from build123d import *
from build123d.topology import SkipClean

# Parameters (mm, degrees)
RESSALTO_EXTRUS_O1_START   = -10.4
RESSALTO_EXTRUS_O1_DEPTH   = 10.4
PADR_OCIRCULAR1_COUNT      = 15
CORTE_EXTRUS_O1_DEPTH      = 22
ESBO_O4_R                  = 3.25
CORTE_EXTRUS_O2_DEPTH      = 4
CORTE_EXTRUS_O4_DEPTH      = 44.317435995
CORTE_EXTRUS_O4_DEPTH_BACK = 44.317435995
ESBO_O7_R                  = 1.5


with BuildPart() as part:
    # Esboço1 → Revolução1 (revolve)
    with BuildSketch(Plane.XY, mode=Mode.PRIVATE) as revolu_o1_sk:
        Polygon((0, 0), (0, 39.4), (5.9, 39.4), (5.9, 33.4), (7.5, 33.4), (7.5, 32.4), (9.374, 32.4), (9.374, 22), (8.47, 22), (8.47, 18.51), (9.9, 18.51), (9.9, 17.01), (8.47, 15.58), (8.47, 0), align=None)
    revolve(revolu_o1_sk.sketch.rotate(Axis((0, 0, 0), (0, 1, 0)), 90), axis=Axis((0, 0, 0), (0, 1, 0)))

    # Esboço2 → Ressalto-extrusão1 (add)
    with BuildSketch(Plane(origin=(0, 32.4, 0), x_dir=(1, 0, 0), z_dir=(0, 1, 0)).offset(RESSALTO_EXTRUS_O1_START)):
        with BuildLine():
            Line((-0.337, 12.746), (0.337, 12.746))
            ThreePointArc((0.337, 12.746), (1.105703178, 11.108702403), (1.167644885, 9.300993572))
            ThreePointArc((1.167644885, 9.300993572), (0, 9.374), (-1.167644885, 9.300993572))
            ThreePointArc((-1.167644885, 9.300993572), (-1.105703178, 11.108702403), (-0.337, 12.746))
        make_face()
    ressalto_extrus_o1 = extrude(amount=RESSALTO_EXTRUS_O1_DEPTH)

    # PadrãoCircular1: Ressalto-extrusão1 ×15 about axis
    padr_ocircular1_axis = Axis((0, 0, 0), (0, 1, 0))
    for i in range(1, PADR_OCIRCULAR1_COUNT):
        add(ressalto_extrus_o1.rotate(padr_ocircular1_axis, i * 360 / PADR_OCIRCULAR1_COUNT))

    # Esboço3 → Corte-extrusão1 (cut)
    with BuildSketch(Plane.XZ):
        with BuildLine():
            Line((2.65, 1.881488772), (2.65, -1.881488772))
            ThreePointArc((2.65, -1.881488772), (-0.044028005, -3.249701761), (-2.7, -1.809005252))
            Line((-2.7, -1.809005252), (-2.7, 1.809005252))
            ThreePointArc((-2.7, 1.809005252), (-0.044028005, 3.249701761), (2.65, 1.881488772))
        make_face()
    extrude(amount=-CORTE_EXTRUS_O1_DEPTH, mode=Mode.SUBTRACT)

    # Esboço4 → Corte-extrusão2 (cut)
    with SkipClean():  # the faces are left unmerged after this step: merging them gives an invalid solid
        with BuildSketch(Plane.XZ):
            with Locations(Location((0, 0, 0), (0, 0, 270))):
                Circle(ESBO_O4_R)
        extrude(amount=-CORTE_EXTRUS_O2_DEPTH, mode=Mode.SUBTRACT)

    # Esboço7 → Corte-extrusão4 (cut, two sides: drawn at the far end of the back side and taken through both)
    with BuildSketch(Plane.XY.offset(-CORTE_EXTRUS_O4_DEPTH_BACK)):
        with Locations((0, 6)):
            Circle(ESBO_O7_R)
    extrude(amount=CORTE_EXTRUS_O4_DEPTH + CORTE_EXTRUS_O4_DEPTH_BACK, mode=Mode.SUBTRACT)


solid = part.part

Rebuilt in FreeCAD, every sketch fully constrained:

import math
import FreeCAD as App
import Part
import Sketcher

V = App.Vector
Q = App.Units.Quantity

doc = App.newDocument("Part")
body = doc.addObject("PartDesign::Body", "Body")

sketch1 = body.newObject("Sketcher::SketchObject", "Sketch")
sketch1.AttachmentSupport = (doc.getObject("XY_Plane"), [""])
sketch1.MapMode = "FlatFace"
sketch1.addGeometry([
    Part.LineSegment(V(0, 39.4, 0), V(0, 0, 0)),
    Part.LineSegment(V(0, 0, 0), V(8.5, 0, 0)),
    Part.LineSegment(V(8.5, 0, 0), V(8.5, 15.6, 0)),
    Part.LineSegment(V(8.5, 15.6, 0), V(9.9, 17, 0)),
    Part.LineSegment(V(9.9, 17, 0), V(9.9, 18.5, 0)),
    Part.LineSegment(V(9.9, 18.5, 0), V(8.5, 18.5, 0)),
    Part.LineSegment(V(8.5, 18.5, 0), V(8.5, 22, 0)),
    Part.LineSegment(V(8.5, 22, 0), V(9.4, 22, 0)),
    Part.LineSegment(V(9.4, 22, 0), V(9.4, 32.4, 0)),
    Part.LineSegment(V(9.4, 32.4, 0), V(7.5, 32.4, 0)),
    Part.LineSegment(V(7.5, 32.4, 0), V(7.5, 33.4, 0)),
    Part.LineSegment(V(7.5, 33.4, 0), V(5.9, 33.4, 0)),
    Part.LineSegment(V(5.9, 33.4, 0), V(5.9, 39.4, 0)),
    Part.LineSegment(V(5.9, 39.4, 0), V(0, 39.4, 0)),
], False)
sketch1.addConstraint([
    Sketcher.Constraint("Coincident", 0, 2, 1, 1),
    Sketcher.Constraint("Coincident", 1, 2, 2, 1),
    Sketcher.Constraint("Coincident", 2, 2, 3, 1),
    Sketcher.Constraint("Coincident", 3, 2, 4, 1),
    Sketcher.Constraint("Coincident", 4, 2, 5, 1),
    Sketcher.Constraint("Coincident", 5, 2, 6, 1),
    Sketcher.Constraint("Coincident", 6, 2, 7, 1),
    Sketcher.Constraint("Coincident", 7, 2, 8, 1),
    Sketcher.Constraint("Coincident", 8, 2, 9, 1),
    Sketcher.Constraint("Coincident", 9, 2, 10, 1),
    Sketcher.Constraint("Coincident", 10, 2, 11, 1),
    Sketcher.Constraint("Coincident", 11, 2, 12, 1),
    Sketcher.Constraint("Coincident", 12, 2, 13, 1),
    Sketcher.Constraint("Coincident", 13, 2, 0, 1),
    Sketcher.Constraint("Vertical", 0),
    Sketcher.Constraint("Horizontal", 1),
    Sketcher.Constraint("Vertical", 2),
    Sketcher.Constraint("Vertical", 4),
    Sketcher.Constraint("Horizontal", 5),
    Sketcher.Constraint("Vertical", 6),
    Sketcher.Constraint("Horizontal", 7),
    Sketcher.Constraint("Vertical", 8),
    Sketcher.Constraint("Horizontal", 9),
    Sketcher.Constraint("Vertical", 10),
    Sketcher.Constraint("Horizontal", 11),
    Sketcher.Constraint("Vertical", 12),
    Sketcher.Constraint("Horizontal", 13),
    Sketcher.Constraint("Coincident", 0, 2, -1, 1),
    Sketcher.Constraint("Vertical", 2, 2, 5, 2),
    Sketcher.Constraint("DistanceY", 10, 1, 10, 2, 1.0),
    Sketcher.Constraint("DistanceY", 12, 1, 12, 2, 6.0),
    Sketcher.Constraint("Angle", 3, Q("45 deg")),
    Sketcher.Constraint("DistanceX", 11, 2, 11, 1, 1.6),
    Sketcher.Constraint("DistanceX", 13, 2, 13, 1, 5.9),
    Sketcher.Constraint("DistanceY", 0, 2, 0, 1, 39.4),
    Sketcher.Constraint("DistanceY", 4, 1, 4, 2, 1.5),
    Sketcher.Constraint("DistanceY", 8, 1, 8, 2, 10.4),
    Sketcher.Constraint("DistanceX", 1, 1, 1, 2, 8.47),
    Sketcher.Constraint("DistanceX", 5, 2, 5, 1, 1.43),
    Sketcher.Constraint("DistanceY", 2, 1, 2, 2, 15.58),
    Sketcher.Constraint("DistanceX", 7, 1, 7, 2, 0.904),
])
revolution = body.newObject("PartDesign::Revolution", "Revolution")
revolution.Profile = sketch1
revolution.ReferenceAxis = (sketch1, ["V_Axis"])
revolution.Angle = 360

sketch2 = body.newObject("Sketcher::SketchObject", "Sketch001")
sketch2.AttachmentSupport = (doc.getObject("XZ_Plane"), [""])
sketch2.MapMode = "FlatFace"
sketch2.AttachmentOffset = App.Placement(V(0, 0, -22), App.Rotation())
sketch2.addGeometry([
    Part.LineSegment(V(0.3, -12.7, 0), V(-0.3, -12.7, 0)),
    Part.ArcOfCircle(Part.Circle(V(3.3, -10.1, 0), V(0, 0, 1), 4.5), math.radians(170), math.radians(217)),
    Part.ArcOfCircle(Part.Circle(V(0, 0, 0), V(0, 0, 1), 9.4), math.radians(-97.16), math.radians(-82.84)),
    Part.ArcOfCircle(Part.Circle(V(-3.3, -10.1, 0), V(0, 0, 1), 4.5), math.radians(-37), math.radians(10)),
], False)
sketch2.addConstraint([
    Sketcher.Constraint("Coincident", 0, 2, 1, 2),
    Sketcher.Constraint("Coincident", 1, 1, 2, 1),
    Sketcher.Constraint("Coincident", 2, 2, 3, 2),
    Sketcher.Constraint("Coincident", 3, 1, 0, 1),
    Sketcher.Constraint("Horizontal", 0),
    Sketcher.Constraint("Coincident", 2, 3, -1, 1),
    Sketcher.Constraint("Equal", 1, 3),
    Sketcher.Constraint("Symmetric", 1, 3, 3, 3, -2),
    Sketcher.Constraint("Radius", 2, 9.374),
    Sketcher.Constraint("DistanceX", 0, 2, 0, 1, 0.674),
    Sketcher.Constraint("DistanceY", 0, 2, -1, 1, 12.746),
    Sketcher.Constraint("Radius", 1, 4.500107),
    Sketcher.Constraint("DistanceX", 3, 3, 1, 1, 2.101389),
])
pad1 = body.newObject("PartDesign::Pad", "Pad")
pad1.Profile = sketch2
pad1.Length = 10.4
pad1.Reversed = True
doc.recompute()

polarpattern = body.newObject("PartDesign::PolarPattern", "PolarPattern")
polarpattern.Originals = [pad1]
polarpattern.Axis = (doc.getObject("Y_Axis"), [""])
polarpattern.Angle = 360
polarpattern.Occurrences = 15
body.Tip = polarpattern

sketch3 = body.newObject("Sketcher::SketchObject", "Sketch002")
sketch3.AttachmentSupport = (doc.getObject("XZ_Plane"), [""])
sketch3.MapMode = "FlatFace"
sketch3.addGeometry([
    Part.LineSegment(V(2.6, -1.9, 0), V(2.6, 1.9, 0)),
    Part.ArcOfCircle(Part.Circle(V(0, 0, 0), V(0, 0, 1), 3.2), math.radians(35), math.radians(146)),
    Part.LineSegment(V(-2.7, 1.8, 0), V(-2.7, -1.8, 0)),
    Part.ArcOfCircle(Part.Circle(V(0, 0, 0), V(0, 0, 1), 3.2), math.radians(-146), math.radians(-35)),
], False)
sketch3.addConstraint([
    Sketcher.Constraint("Coincident", 0, 2, 1, 1),
    Sketcher.Constraint("Coincident", 1, 2, 2, 1),
    Sketcher.Constraint("Coincident", 2, 2, 3, 1),
    Sketcher.Constraint("Coincident", 3, 2, 0, 1),
    Sketcher.Constraint("Vertical", 0),
    Sketcher.Constraint("Vertical", 2),
    Sketcher.Constraint("Coincident", 1, 3, -1, 1),
    Sketcher.Constraint("Coincident", 3, 3, -1, 1),
    Sketcher.Constraint("Equal", 1, 3),
    Sketcher.Constraint("Radius", 1, 3.25),
    Sketcher.Constraint("DistanceX", 1, 2, -1, 1, 2.7),
    Sketcher.Constraint("DistanceX", -1, 1, 0, 2, 2.65),
])
pocket1 = body.newObject("PartDesign::Pocket", "Pocket")
pocket1.Profile = sketch3
pocket1.Length = 22

sketch4 = body.newObject("Sketcher::SketchObject", "Sketch003")
sketch4.AttachmentSupport = (doc.getObject("XZ_Plane"), [""])
sketch4.MapMode = "FlatFace"
sketch4.addGeometry(Part.Circle(V(0, 0, 0), V(0, 0, 1), 3.2), False)
sketch4.addConstraint([
    Sketcher.Constraint("Coincident", 0, 3, -1, 1),
    Sketcher.Constraint("Diameter", 0, 6.5),
])
pocket2 = body.newObject("PartDesign::Pocket", "Pocket001")
pocket2.Profile = sketch4
pocket2.Length = 4

sketch5 = body.newObject("Sketcher::SketchObject", "Sketch004")
sketch5.AttachmentSupport = (doc.getObject("XY_Plane"), [""])
sketch5.MapMode = "FlatFace"
sketch5.addGeometry(Part.Circle(V(0, 6, 0), V(0, 0, 1), 1.5), False)
sketch5.addConstraint([
    Sketcher.Constraint("PointOnObject", 0, 3, -2),
    Sketcher.Constraint("Diameter", 0, 3.0),
    Sketcher.Constraint("DistanceY", -1, 1, 0, 3, 6.0),
])
pocket3 = body.newObject("PartDesign::Pocket", "Pocket002")
pocket3.Profile = sketch5
pocket3.Type = "ThroughAll"
pocket3.Midplane = True

doc.recompute()
